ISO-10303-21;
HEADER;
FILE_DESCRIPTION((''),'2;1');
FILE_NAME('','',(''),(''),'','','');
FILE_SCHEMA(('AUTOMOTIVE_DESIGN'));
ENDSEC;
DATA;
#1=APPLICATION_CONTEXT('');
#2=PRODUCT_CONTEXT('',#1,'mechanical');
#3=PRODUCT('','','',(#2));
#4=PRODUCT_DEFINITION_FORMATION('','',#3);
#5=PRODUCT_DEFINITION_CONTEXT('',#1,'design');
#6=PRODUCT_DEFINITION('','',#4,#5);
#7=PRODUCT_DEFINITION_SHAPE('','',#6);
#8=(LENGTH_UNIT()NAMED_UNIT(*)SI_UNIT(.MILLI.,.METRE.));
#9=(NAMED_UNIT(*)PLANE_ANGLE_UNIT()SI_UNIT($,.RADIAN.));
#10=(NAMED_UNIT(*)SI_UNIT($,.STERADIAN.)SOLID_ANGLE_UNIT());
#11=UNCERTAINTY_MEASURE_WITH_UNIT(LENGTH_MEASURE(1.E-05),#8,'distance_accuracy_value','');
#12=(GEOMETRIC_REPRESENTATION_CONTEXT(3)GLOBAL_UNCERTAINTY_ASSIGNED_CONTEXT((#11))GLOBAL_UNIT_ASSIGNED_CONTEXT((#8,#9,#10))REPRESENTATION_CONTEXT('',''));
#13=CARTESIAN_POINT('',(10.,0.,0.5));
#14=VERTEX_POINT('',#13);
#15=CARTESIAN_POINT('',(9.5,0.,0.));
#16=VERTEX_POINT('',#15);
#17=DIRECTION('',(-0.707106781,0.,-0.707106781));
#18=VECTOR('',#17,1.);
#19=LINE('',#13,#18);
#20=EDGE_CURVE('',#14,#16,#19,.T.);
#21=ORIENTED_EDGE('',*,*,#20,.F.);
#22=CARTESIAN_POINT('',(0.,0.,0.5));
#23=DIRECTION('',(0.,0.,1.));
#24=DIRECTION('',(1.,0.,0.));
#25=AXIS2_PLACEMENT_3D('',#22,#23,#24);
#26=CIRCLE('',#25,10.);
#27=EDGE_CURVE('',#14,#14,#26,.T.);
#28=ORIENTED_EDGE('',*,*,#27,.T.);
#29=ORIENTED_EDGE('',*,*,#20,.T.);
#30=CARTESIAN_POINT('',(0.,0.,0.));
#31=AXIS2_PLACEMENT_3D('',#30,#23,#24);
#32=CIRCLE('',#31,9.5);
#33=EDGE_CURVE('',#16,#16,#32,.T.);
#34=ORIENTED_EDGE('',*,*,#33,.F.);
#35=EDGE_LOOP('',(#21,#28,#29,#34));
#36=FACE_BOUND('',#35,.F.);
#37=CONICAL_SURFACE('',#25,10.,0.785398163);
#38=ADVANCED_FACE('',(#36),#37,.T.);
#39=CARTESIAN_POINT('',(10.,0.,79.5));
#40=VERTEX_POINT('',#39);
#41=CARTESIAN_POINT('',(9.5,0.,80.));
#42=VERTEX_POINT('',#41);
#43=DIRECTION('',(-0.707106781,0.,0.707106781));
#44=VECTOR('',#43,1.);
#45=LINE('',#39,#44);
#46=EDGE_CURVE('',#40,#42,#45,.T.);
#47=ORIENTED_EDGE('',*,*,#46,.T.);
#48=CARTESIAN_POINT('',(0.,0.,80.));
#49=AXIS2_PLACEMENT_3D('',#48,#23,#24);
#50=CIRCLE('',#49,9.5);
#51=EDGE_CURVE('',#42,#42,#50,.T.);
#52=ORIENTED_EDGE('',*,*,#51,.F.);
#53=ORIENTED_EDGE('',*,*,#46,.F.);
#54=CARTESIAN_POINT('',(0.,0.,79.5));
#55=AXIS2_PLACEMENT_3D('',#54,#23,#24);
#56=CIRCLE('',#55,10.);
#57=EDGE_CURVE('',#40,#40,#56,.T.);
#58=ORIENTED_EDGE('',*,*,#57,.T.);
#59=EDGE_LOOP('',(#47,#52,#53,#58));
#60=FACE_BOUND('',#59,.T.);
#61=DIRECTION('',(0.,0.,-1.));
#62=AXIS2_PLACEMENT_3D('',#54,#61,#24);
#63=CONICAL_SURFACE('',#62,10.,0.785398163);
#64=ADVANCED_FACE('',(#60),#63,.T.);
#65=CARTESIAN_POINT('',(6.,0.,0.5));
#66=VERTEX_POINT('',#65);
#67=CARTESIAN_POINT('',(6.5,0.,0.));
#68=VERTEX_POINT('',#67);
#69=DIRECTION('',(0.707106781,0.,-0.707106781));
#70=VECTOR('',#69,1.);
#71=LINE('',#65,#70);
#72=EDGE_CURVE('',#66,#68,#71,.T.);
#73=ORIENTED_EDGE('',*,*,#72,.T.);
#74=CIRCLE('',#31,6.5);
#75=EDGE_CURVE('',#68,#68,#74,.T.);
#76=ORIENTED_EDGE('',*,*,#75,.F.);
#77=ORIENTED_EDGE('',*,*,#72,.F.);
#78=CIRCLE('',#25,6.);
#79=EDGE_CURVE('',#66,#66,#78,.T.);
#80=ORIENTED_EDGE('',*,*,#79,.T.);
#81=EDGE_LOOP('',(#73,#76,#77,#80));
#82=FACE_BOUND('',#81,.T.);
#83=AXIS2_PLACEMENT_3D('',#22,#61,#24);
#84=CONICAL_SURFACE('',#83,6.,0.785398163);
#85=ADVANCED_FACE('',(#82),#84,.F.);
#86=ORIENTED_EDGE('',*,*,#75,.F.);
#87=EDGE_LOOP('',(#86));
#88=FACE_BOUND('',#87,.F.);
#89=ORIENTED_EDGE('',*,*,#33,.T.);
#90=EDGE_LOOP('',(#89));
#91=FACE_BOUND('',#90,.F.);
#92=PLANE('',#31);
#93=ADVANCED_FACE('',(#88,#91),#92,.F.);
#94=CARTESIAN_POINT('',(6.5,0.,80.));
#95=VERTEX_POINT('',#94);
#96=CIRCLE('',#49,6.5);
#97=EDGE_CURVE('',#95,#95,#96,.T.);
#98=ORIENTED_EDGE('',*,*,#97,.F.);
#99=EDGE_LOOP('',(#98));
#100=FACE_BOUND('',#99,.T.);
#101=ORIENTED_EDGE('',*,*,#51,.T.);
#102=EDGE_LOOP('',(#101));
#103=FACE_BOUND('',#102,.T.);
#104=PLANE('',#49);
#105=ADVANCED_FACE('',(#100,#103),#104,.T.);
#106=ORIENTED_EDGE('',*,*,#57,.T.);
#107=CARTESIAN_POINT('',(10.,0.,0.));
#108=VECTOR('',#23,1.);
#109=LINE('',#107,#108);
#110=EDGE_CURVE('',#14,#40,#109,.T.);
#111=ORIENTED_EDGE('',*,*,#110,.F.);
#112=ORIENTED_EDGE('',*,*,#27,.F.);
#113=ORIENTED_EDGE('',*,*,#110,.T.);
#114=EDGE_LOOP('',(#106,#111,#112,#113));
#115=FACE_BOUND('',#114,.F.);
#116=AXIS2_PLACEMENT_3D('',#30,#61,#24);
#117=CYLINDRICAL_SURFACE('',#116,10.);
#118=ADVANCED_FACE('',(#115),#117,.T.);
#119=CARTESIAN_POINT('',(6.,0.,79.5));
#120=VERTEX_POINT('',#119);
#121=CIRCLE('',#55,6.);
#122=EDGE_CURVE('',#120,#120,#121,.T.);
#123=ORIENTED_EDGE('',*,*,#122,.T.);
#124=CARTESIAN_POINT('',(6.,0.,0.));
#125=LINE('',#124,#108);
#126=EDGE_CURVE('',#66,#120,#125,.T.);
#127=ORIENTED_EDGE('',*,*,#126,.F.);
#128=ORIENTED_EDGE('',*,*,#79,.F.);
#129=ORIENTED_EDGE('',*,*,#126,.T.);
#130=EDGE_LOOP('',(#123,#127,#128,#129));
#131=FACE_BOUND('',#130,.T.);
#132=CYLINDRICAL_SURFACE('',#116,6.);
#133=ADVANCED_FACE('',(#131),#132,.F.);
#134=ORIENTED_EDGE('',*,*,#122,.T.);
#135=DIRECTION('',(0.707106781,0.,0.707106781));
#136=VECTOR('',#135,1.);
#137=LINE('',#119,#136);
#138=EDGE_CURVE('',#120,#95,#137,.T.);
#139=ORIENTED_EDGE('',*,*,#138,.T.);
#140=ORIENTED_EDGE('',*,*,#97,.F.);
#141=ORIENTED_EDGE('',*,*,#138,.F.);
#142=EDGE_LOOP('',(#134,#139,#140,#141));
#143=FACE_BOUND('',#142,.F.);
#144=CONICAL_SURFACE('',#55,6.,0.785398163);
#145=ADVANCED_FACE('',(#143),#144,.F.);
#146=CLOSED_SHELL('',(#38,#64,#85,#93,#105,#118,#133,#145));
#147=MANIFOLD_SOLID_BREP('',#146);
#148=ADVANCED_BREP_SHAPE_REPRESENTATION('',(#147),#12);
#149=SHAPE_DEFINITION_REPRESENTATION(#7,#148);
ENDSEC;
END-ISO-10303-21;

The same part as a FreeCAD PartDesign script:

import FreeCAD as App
import Part
import Sketcher
Q = App.Units.Quantity


def edges_at(feature, points):
    """Names of the edges that pass closest to the given points."""
    edges = feature.Shape.Edges
    near = lambda p: min(range(len(edges)), key=lambda i: edges[i].distToShape(Part.Vertex(*p))[0])
    return sorted({f"Edge{near(p) + 1}" for p in points})

doc = App.newDocument("Part")
body = doc.addObject("PartDesign::Body", "Body")

sketch1 = doc.addObject("Sketcher::SketchObject", "Sketch")
body.addObject(sketch1)
sketch1.AttachmentSupport = (doc.XY_Plane, [""])
sketch1.MapMode = "FlatFace"
sketch1.addGeometry(Part.Circle(App.Vector(0, 0, 0), App.Vector(0, 0, 1), 10), False)
sketch1.addGeometry(Part.Circle(App.Vector(0, 0, 0), App.Vector(0, 0, 1), 6), False)
sketch1.addConstraint(Sketcher.Constraint("Coincident", 0, 3, -1, 1))
sketch1.addConstraint(Sketcher.Constraint("Coincident", 1, 3, -1, 1))
sketch1.addConstraint(Sketcher.Constraint("Diameter", 0, Q("20 mm")))
sketch1.addConstraint(Sketcher.Constraint("Diameter", 1, Q("12 mm")))
pad1 = doc.addObject("PartDesign::Pad", "Pad")
body.addObject(pad1)
pad1.Profile = sketch1
pad1.Length = 80
doc.recompute()

chamfer = doc.addObject("PartDesign::Chamfer", "Chamfer")
body.addObject(chamfer)
chamfer.Base = (pad1, edges_at(pad1, [
    (-6, 0, 80),
    (-6, 0, 0),
    (-10, 0, 80),
    (-10, 0, 0),
]))
chamfer.Size = 0.5

doc.recompute()
